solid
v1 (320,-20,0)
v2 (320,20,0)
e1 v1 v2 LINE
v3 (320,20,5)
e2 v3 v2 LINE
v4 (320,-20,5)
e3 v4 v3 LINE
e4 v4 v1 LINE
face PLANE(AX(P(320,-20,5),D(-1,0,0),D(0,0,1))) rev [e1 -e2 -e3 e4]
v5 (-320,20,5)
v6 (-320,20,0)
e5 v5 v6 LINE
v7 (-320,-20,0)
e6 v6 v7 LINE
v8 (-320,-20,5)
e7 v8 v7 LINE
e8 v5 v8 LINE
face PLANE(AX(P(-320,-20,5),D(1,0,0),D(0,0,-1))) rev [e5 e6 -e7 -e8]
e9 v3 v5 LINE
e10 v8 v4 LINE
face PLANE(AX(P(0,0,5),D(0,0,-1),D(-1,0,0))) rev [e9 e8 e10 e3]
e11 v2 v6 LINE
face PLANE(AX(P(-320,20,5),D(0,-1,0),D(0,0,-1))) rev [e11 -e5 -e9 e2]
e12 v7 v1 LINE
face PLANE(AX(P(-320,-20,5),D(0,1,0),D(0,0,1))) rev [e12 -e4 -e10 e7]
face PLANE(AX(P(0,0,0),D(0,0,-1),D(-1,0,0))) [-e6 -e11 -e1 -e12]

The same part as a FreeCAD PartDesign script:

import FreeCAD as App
import Part
import Sketcher


def add_polygon(sketch, points):
    """Adds a closed chain of lines whose ends are joined by coincident constraints."""
    first, n = sketch.GeometryCount, len(points)
    for a, b in zip(points, points[1:] + points[:1]):
        sketch.addGeometry(Part.LineSegment(App.Vector(*a, 0), App.Vector(*b, 0)), False)
    for i in range(n):
        sketch.addConstraint(Sketcher.Constraint("Coincident", first + i, 2, first + (i + 1) % n, 1))

doc = App.newDocument("Part")
body = doc.addObject("PartDesign::Body", "Body")

# Sketch on XY plane
sketch1 = doc.addObject("Sketcher::SketchObject", "Sketch")
body.addObject(sketch1)
sketch1.AttachmentSupport = (doc.XY_Plane, [""])
sketch1.MapMode = "FlatFace"
add_polygon(sketch1, [(-320, 20), (-320, -20), (320, -20), (320, 20)])  # lines 0-3
sketch1.addConstraint([
    Sketcher.Constraint("Vertical", 0),
    Sketcher.Constraint("Horizontal", 1),
    Sketcher.Constraint("Vertical", 2),
    Sketcher.Constraint("Horizontal", 3),
    Sketcher.Constraint("Symmetric", 0, 2, 2, 2, -1, 1),
    Sketcher.Constraint("DistanceX", 1, 1, 1, 2, 640.0),
    Sketcher.Constraint("DistanceY", 0, 2, 0, 1, 40.0),
])
pad1 = doc.addObject("PartDesign::Pad", "Pad")
body.addObject(pad1)
pad1.Profile = sketch1
pad1.Length = 5

doc.recompute()
